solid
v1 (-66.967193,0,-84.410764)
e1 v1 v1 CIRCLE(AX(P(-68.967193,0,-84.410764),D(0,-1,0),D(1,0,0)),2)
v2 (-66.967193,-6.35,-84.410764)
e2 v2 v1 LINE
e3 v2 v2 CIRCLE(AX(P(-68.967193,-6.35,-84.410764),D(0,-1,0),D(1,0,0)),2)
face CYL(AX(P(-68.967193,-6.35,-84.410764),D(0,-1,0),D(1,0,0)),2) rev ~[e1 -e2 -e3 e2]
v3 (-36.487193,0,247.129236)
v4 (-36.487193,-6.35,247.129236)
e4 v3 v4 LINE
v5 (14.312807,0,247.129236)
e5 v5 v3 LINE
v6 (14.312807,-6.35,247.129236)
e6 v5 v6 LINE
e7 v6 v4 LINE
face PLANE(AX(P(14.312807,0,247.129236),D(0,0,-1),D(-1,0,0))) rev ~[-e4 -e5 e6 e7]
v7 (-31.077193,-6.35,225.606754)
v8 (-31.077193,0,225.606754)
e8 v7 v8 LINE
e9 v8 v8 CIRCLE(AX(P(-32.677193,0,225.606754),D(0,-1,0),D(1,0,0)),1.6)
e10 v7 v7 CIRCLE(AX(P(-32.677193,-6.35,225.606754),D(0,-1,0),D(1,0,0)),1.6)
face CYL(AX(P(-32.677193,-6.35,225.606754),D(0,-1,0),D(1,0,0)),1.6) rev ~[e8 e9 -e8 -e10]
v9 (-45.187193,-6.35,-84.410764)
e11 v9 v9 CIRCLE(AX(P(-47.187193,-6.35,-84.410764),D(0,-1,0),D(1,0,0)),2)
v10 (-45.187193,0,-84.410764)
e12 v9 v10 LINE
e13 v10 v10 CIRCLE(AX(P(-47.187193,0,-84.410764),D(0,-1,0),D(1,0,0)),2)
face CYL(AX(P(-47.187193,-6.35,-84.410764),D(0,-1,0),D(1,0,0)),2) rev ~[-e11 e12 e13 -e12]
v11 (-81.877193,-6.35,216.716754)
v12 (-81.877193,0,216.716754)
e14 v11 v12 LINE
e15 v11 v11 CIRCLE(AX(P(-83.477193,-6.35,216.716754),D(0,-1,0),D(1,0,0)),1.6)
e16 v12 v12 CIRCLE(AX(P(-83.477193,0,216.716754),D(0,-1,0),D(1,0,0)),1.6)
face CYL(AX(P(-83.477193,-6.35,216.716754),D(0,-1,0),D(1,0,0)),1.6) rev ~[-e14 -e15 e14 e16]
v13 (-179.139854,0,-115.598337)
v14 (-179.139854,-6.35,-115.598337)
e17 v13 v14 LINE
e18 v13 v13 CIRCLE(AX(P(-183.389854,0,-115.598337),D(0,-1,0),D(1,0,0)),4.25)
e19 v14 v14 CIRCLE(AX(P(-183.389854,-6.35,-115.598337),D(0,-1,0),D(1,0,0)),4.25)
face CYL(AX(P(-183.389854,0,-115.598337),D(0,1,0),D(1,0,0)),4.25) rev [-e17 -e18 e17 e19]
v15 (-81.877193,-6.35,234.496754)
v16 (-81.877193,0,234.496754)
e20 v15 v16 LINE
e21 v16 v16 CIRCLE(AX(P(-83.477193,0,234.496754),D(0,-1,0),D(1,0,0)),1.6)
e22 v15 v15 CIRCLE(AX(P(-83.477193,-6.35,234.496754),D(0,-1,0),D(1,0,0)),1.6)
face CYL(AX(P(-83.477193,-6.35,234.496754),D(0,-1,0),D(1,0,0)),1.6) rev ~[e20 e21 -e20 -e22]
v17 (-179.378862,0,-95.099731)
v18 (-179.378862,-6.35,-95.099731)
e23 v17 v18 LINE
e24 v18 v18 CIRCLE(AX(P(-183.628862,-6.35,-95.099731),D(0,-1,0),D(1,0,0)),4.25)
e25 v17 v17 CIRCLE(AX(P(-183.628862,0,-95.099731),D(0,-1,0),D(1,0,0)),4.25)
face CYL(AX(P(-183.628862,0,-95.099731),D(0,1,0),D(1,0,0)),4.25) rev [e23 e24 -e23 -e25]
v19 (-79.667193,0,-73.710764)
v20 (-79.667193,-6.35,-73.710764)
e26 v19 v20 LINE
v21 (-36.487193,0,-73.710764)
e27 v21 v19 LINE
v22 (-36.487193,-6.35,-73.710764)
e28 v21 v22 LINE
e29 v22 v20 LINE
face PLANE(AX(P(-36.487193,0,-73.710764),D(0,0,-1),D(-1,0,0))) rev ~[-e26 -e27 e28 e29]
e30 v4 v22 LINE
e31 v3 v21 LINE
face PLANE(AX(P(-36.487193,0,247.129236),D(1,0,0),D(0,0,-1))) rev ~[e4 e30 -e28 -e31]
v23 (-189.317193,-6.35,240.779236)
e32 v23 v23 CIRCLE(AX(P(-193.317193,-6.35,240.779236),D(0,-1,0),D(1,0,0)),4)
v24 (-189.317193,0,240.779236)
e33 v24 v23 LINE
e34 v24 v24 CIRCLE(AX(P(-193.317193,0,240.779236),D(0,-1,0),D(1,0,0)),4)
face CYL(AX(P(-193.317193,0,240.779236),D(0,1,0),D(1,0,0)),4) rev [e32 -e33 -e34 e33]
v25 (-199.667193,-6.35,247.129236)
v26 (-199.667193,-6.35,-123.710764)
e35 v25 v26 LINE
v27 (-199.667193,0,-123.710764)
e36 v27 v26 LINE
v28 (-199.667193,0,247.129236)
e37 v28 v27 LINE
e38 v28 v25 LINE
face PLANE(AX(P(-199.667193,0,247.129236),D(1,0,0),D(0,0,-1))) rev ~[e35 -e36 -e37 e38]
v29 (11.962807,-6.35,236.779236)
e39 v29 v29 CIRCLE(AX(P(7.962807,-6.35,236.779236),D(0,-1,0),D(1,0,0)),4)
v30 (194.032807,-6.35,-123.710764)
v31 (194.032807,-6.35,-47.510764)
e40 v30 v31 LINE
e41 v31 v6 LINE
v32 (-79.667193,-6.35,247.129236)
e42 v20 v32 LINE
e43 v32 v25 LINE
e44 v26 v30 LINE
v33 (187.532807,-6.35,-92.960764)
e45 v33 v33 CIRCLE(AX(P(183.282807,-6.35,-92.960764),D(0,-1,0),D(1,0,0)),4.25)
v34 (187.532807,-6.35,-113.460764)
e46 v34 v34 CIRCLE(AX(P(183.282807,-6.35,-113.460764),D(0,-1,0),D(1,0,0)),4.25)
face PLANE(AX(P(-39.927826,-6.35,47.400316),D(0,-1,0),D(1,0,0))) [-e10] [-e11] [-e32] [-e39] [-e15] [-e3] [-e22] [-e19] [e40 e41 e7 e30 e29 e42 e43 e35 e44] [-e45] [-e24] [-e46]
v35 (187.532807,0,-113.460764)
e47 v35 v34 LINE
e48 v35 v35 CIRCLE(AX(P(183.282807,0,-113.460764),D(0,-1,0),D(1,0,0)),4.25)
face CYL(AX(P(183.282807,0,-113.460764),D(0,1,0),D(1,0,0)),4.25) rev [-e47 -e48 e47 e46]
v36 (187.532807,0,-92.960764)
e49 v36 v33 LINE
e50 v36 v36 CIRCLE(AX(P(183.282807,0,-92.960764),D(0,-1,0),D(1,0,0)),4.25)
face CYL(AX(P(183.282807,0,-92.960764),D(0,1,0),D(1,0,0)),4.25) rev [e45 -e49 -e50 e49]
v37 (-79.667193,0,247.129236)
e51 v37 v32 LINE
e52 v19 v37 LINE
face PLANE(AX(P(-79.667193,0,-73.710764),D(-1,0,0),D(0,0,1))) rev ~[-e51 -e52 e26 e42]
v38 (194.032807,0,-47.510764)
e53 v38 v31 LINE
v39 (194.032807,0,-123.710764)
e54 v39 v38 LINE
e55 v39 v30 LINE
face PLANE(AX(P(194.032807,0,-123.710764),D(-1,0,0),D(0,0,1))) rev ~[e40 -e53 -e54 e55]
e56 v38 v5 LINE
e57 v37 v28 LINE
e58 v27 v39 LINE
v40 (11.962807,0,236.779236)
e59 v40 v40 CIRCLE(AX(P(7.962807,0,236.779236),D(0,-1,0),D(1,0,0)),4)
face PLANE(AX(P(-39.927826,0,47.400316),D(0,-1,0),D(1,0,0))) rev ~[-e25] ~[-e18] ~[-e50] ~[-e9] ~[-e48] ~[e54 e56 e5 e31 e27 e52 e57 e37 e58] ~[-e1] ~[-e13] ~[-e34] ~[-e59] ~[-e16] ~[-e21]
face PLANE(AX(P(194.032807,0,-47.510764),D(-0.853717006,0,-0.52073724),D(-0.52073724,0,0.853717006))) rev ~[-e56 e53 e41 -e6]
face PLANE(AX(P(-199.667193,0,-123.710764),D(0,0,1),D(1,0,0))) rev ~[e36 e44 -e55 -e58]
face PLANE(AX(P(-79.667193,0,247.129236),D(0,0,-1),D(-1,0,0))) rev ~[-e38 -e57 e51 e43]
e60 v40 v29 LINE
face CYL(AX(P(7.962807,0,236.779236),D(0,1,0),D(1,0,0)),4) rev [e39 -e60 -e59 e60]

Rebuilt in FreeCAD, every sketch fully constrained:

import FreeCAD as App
import Part
import Sketcher
from FreeCAD import Vector
Q = App.Units.Quantity

doc = App.newDocument("Part")
body = doc.addObject("PartDesign::Body", "Body")

sketch1 = body.newObject("Sketcher::SketchObject", "Sketch")
sketch1.AttachmentSupport = (doc.getObject("XZ_Plane"), [""])
sketch1.MapMode = "FlatFace"
sketch1.addGeometry([
    Part.LineSegment(Vector(-199.667193, 247.129236, 0), Vector(-199.667193, -123.710764, 0)),
    Part.LineSegment(Vector(-199.667193, -123.710764, 0), Vector(194.032807, -123.710764, 0)),
    Part.LineSegment(Vector(194.032807, -123.710764, 0), Vector(194.032807, -47.510764, 0)),
    Part.LineSegment(Vector(194.032807, -47.510764, 0), Vector(14.312807, 247.129236, 0)),
    Part.LineSegment(Vector(14.312807, 247.129236, 0), Vector(-36.487193, 247.129236, 0)),
    Part.LineSegment(Vector(-36.487193, 247.129236, 0), Vector(-36.487193, -73.710764, 0)),
    Part.LineSegment(Vector(-36.487193, -73.710764, 0), Vector(-79.667193, -73.710764, 0)),
    Part.LineSegment(Vector(-79.667193, -73.710764, 0), Vector(-79.667193, 247.129236, 0)),
    Part.LineSegment(Vector(-79.667193, 247.129236, 0), Vector(-199.667193, 247.129236, 0)),
    Part.Circle(Vector(-183.389854, -115.598337, 0), Vector(0, 0, 1), 4.25),
    Part.Circle(Vector(-183.628862, -95.099731, 0), Vector(0, 0, 1), 4.25),
    Part.Circle(Vector(183.282807, -113.460764, 0), Vector(0, 0, 1), 4.25),
    Part.Circle(Vector(183.282807, -92.960764, 0), Vector(0, 0, 1), 4.25),
    Part.Circle(Vector(-193.317193, 240.779236, 0), Vector(0, 0, 1), 4),
    Part.Circle(Vector(7.962807, 236.779236, 0), Vector(0, 0, 1), 4),
], False)
sketch1.addConstraint([
    Sketcher.Constraint("Coincident", 0, 2, 1, 1),
    Sketcher.Constraint("Coincident", 1, 2, 2, 1),
    Sketcher.Constraint("Coincident", 2, 2, 3, 1),
    Sketcher.Constraint("Coincident", 3, 2, 4, 1),
    Sketcher.Constraint("Coincident", 4, 2, 5, 1),
    Sketcher.Constraint("Coincident", 5, 2, 6, 1),
    Sketcher.Constraint("Coincident", 6, 2, 7, 1),
    Sketcher.Constraint("Coincident", 7, 2, 8, 1),
    Sketcher.Constraint("Coincident", 8, 2, 0, 1),
    Sketcher.Constraint("Vertical", 0),
    Sketcher.Constraint("Horizontal", 1),
    Sketcher.Constraint("Vertical", 2),
    Sketcher.Constraint("Horizontal", 4),
    Sketcher.Constraint("Vertical", 5),
    Sketcher.Constraint("Horizontal", 6),
    Sketcher.Constraint("Vertical", 7),
    Sketcher.Constraint("Horizontal", 8),
    Sketcher.Constraint("Equal", 9, 10),
    Sketcher.Constraint("Equal", 10, 11),
    Sketcher.Constraint("Equal", 11, 12),
    Sketcher.Constraint("Equal", 13, 14),
    Sketcher.Constraint("Horizontal", 4, 2, 7, 2),
    Sketcher.Constraint("Vertical", 11, 3, 12, 3),
    Sketcher.Constraint("DistanceX", 4, 2, 4, 1, Q("2 in")),
    Sketcher.Constraint("DistanceY", 2, 1, 2, 2, Q("3 in")),
    Sketcher.Constraint("DistanceX", 1, 1, 1, 2, Q("15.5 in")),
    Sketcher.Constraint("DistanceX", 6, 2, 6, 1, Q("1.7 in")),
    Sketcher.Constraint("DistanceY", 0, 2, 0, 1, Q("14.6 in")),
    Sketcher.Constraint("Diameter", 9, Q("8.5 mm")),
    Sketcher.Constraint("Diameter", 13, Q("8 mm")),
    Sketcher.Constraint("DistanceX", 0, 2, 13, 3, Q("0.25 in")),
    Sketcher.Constraint("DistanceY", 0, 2, 13, 3, Q("14.35 in")),
    Sketcher.Constraint("DistanceX", 14, 3, 3, 2, Q("0.25 in")),
    Sketcher.Constraint("DistanceX", 8, 2, 8, 1, Q("120 mm")),
    Sketcher.Constraint("DistanceY", 5, 2, 5, 1, Q("320.84 mm")),
    Sketcher.Constraint("DistanceY", 11, 3, 12, 3, Q("20.5 mm")),
    Sketcher.Constraint("DistanceX", 13, 3, 12, 3, Q("376.6 mm")),
    Sketcher.Constraint("DistanceY", 12, 3, 13, 3, Q("333.74 mm")),
    Sketcher.Constraint("DistanceY", 14, 3, 13, 3, Q("4 mm")),
    Sketcher.Constraint("DistanceX", 10, 3, -1, 1, Q("183.628862 mm")),
    Sketcher.Constraint("DistanceY", 10, 3, -1, 1, Q("95.099731 mm")),
    Sketcher.Constraint("DistanceX", 9, 3, 11, 3, Q("366.672661 mm")),
    Sketcher.Constraint("DistanceX", 10, 3, 11, 3, Q("366.911669 mm")),
    Sketcher.Constraint("DistanceY", 9, 3, -1, 1, Q("115.598337 mm")),
    Sketcher.Constraint("DistanceY", 11, 3, -1, 1, Q("113.460764 mm")),
])
pad1 = body.newObject("PartDesign::Pad", "Pad")
pad1.Profile = sketch1
pad1.Length = Q("0.25 in")

sketch2 = body.newObject("Sketcher::SketchObject", "Sketch001")
sketch2.AttachmentSupport = (doc.getObject("XZ_Plane"), [""])
sketch2.MapMode = "FlatFace"
sketch2.AttachmentOffset = App.Placement(Vector(0, 0, 0.25 * 25.4), App.Rotation())
sketch2.addGeometry([
    Part.Circle(Vector(-32.677193, 225.606754, 0), Vector(0, 0, 1), 1.6),
    Part.Circle(Vector(-83.477193, 234.496754, 0), Vector(0, 0, 1), 1.6),
    Part.Circle(Vector(-83.477193, 216.716754, 0), Vector(0, 0, 1), 1.6),
    Part.Circle(Vector(-68.967193, -84.410764, 0), Vector(0, 0, 1), 2),
    Part.Circle(Vector(-47.187193, -84.410764, 0), Vector(0, 0, 1), 2),
], False)
sketch2.addConstraint([
    Sketcher.Constraint("Equal", 0, 1),
    Sketcher.Constraint("Equal", 1, 2),
    Sketcher.Constraint("Equal", 3, 4),
    Sketcher.Constraint("Horizontal", 3, 3, 4, 3),
    Sketcher.Constraint("Vertical", 1, 3, 2, 3),
    Sketcher.Constraint("DistanceX", 1, 3, 0, 3, Q("2 in")),
    Sketcher.Constraint("DistanceY", 2, 3, 1, 3, Q("0.7 in")),
    Sketcher.Constraint("Diameter", 0, Q("3.2 mm")),
    Sketcher.Constraint("Diameter", 3, Q("4 mm")),
    Sketcher.Constraint("DistanceY", 0, 3, 1, 3, Q("0.35 in")),
    Sketcher.Constraint("DistanceX", 2, 3, 3, 3, Q("14.51 mm")),
    Sketcher.Constraint("DistanceX", 3, 3, 4, 3, Q("21.78 mm")),
    Sketcher.Constraint("DistanceY", 3, 3, 2, 3, Q("301.127518 mm")),
    Sketcher.Constraint("DistanceX", 0, 3, -1, 1, Q("32.677193 mm")),
    Sketcher.Constraint("DistanceY", -1, 1, 0, 3, Q("225.606754 mm")),
])
pocket1 = body.newObject("PartDesign::Pocket", "Pocket")
pocket1.Profile = sketch2
pocket1.Length = Q("1 in")

doc.recompute()
